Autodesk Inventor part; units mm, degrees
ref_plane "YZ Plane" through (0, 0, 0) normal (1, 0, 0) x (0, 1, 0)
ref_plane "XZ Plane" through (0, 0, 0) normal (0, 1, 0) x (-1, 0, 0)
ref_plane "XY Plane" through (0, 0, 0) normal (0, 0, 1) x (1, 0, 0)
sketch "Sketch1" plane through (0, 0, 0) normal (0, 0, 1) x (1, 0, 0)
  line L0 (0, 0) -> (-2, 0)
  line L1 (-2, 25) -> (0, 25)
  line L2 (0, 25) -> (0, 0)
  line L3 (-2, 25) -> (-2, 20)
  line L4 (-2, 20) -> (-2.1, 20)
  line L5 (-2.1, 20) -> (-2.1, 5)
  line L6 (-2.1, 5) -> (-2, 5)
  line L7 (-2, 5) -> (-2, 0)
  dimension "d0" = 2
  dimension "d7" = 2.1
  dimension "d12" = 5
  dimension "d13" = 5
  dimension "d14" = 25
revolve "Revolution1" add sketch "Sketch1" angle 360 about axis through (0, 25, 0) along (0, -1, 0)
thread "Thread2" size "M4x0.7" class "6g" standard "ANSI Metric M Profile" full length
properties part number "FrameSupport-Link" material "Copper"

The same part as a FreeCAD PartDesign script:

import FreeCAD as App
import Part
import Sketcher

V = App.Vector

doc = App.newDocument("Part")
body = doc.addObject("PartDesign::Body", "Body")

sketch1 = body.newObject("Sketcher::SketchObject", "Sketch")
sketch1.AttachmentSupport = (doc.getObject("XY_Plane"), [""])
sketch1.MapMode = "FlatFace"
sketch1.addGeometry(Part.LineSegment(V(-2, 0, 0), V(0, 0, 0)), False)
sketch1.addGeometry(Part.LineSegment(V(0, 0, 0), V(0, 25, 0)), False)
sketch1.addGeometry(Part.LineSegment(V(0, 25, 0), V(-2, 25, 0)), False)
sketch1.addGeometry(Part.LineSegment(V(-2, 25, 0), V(-2, 20, 0)), False)
sketch1.addGeometry(Part.LineSegment(V(-2, 20, 0), V(-2.1, 20, 0)), False)
sketch1.addGeometry(Part.LineSegment(V(-2.1, 20, 0), V(-2.1, 5, 0)), False)
sketch1.addGeometry(Part.LineSegment(V(-2.1, 5, 0), V(-2, 5, 0)), False)
sketch1.addGeometry(Part.LineSegment(V(-2, 5, 0), V(-2, 0, 0)), False)
sketch1.addConstraint(Sketcher.Constraint("Coincident", 0, 2, 1, 1))
sketch1.addConstraint(Sketcher.Constraint("Coincident", 1, 2, 2, 1))
sketch1.addConstraint(Sketcher.Constraint("Coincident", 2, 2, 3, 1))
sketch1.addConstraint(Sketcher.Constraint("Coincident", 3, 2, 4, 1))
sketch1.addConstraint(Sketcher.Constraint("Coincident", 4, 2, 5, 1))
sketch1.addConstraint(Sketcher.Constraint("Coincident", 5, 2, 6, 1))
sketch1.addConstraint(Sketcher.Constraint("Coincident", 6, 2, 7, 1))
sketch1.addConstraint(Sketcher.Constraint("Coincident", 7, 2, 0, 1))
sketch1.addConstraint(Sketcher.Constraint("Horizontal", 0))
sketch1.addConstraint(Sketcher.Constraint("Vertical", 1))
sketch1.addConstraint(Sketcher.Constraint("Horizontal", 2))
sketch1.addConstraint(Sketcher.Constraint("Vertical", 3))
sketch1.addConstraint(Sketcher.Constraint("Horizontal", 4))
sketch1.addConstraint(Sketcher.Constraint("Vertical", 5))
sketch1.addConstraint(Sketcher.Constraint("Horizontal", 6))
sketch1.addConstraint(Sketcher.Constraint("Vertical", 7))
sketch1.addConstraint(Sketcher.Constraint("Coincident", 0, 2, -1, 1))
sketch1.addConstraint(Sketcher.Constraint("Vertical", 3, 2, 6, 2))
sketch1.addConstraint(Sketcher.Constraint("Equal", 3, 7))
sketch1.addConstraint(Sketcher.Constraint("DistanceX", 0, 1, 0, 2, 2.0))
sketch1.addConstraint(Sketcher.Constraint("DistanceY", 1, 1, 1, 2, 25.0))
sketch1.addConstraint(Sketcher.Constraint("DistanceY", 3, 2, 3, 1, 5.0))
sketch1.addConstraint(Sketcher.Constraint("DistanceX", 4, 2, -1, 1, 2.1))
revolution = body.newObject("PartDesign::Revolution", "Revolution")
revolution.Profile = sketch1
revolution.ReferenceAxis = (sketch1, ["V_Axis"])
revolution.Angle = 360

doc.recompute()
